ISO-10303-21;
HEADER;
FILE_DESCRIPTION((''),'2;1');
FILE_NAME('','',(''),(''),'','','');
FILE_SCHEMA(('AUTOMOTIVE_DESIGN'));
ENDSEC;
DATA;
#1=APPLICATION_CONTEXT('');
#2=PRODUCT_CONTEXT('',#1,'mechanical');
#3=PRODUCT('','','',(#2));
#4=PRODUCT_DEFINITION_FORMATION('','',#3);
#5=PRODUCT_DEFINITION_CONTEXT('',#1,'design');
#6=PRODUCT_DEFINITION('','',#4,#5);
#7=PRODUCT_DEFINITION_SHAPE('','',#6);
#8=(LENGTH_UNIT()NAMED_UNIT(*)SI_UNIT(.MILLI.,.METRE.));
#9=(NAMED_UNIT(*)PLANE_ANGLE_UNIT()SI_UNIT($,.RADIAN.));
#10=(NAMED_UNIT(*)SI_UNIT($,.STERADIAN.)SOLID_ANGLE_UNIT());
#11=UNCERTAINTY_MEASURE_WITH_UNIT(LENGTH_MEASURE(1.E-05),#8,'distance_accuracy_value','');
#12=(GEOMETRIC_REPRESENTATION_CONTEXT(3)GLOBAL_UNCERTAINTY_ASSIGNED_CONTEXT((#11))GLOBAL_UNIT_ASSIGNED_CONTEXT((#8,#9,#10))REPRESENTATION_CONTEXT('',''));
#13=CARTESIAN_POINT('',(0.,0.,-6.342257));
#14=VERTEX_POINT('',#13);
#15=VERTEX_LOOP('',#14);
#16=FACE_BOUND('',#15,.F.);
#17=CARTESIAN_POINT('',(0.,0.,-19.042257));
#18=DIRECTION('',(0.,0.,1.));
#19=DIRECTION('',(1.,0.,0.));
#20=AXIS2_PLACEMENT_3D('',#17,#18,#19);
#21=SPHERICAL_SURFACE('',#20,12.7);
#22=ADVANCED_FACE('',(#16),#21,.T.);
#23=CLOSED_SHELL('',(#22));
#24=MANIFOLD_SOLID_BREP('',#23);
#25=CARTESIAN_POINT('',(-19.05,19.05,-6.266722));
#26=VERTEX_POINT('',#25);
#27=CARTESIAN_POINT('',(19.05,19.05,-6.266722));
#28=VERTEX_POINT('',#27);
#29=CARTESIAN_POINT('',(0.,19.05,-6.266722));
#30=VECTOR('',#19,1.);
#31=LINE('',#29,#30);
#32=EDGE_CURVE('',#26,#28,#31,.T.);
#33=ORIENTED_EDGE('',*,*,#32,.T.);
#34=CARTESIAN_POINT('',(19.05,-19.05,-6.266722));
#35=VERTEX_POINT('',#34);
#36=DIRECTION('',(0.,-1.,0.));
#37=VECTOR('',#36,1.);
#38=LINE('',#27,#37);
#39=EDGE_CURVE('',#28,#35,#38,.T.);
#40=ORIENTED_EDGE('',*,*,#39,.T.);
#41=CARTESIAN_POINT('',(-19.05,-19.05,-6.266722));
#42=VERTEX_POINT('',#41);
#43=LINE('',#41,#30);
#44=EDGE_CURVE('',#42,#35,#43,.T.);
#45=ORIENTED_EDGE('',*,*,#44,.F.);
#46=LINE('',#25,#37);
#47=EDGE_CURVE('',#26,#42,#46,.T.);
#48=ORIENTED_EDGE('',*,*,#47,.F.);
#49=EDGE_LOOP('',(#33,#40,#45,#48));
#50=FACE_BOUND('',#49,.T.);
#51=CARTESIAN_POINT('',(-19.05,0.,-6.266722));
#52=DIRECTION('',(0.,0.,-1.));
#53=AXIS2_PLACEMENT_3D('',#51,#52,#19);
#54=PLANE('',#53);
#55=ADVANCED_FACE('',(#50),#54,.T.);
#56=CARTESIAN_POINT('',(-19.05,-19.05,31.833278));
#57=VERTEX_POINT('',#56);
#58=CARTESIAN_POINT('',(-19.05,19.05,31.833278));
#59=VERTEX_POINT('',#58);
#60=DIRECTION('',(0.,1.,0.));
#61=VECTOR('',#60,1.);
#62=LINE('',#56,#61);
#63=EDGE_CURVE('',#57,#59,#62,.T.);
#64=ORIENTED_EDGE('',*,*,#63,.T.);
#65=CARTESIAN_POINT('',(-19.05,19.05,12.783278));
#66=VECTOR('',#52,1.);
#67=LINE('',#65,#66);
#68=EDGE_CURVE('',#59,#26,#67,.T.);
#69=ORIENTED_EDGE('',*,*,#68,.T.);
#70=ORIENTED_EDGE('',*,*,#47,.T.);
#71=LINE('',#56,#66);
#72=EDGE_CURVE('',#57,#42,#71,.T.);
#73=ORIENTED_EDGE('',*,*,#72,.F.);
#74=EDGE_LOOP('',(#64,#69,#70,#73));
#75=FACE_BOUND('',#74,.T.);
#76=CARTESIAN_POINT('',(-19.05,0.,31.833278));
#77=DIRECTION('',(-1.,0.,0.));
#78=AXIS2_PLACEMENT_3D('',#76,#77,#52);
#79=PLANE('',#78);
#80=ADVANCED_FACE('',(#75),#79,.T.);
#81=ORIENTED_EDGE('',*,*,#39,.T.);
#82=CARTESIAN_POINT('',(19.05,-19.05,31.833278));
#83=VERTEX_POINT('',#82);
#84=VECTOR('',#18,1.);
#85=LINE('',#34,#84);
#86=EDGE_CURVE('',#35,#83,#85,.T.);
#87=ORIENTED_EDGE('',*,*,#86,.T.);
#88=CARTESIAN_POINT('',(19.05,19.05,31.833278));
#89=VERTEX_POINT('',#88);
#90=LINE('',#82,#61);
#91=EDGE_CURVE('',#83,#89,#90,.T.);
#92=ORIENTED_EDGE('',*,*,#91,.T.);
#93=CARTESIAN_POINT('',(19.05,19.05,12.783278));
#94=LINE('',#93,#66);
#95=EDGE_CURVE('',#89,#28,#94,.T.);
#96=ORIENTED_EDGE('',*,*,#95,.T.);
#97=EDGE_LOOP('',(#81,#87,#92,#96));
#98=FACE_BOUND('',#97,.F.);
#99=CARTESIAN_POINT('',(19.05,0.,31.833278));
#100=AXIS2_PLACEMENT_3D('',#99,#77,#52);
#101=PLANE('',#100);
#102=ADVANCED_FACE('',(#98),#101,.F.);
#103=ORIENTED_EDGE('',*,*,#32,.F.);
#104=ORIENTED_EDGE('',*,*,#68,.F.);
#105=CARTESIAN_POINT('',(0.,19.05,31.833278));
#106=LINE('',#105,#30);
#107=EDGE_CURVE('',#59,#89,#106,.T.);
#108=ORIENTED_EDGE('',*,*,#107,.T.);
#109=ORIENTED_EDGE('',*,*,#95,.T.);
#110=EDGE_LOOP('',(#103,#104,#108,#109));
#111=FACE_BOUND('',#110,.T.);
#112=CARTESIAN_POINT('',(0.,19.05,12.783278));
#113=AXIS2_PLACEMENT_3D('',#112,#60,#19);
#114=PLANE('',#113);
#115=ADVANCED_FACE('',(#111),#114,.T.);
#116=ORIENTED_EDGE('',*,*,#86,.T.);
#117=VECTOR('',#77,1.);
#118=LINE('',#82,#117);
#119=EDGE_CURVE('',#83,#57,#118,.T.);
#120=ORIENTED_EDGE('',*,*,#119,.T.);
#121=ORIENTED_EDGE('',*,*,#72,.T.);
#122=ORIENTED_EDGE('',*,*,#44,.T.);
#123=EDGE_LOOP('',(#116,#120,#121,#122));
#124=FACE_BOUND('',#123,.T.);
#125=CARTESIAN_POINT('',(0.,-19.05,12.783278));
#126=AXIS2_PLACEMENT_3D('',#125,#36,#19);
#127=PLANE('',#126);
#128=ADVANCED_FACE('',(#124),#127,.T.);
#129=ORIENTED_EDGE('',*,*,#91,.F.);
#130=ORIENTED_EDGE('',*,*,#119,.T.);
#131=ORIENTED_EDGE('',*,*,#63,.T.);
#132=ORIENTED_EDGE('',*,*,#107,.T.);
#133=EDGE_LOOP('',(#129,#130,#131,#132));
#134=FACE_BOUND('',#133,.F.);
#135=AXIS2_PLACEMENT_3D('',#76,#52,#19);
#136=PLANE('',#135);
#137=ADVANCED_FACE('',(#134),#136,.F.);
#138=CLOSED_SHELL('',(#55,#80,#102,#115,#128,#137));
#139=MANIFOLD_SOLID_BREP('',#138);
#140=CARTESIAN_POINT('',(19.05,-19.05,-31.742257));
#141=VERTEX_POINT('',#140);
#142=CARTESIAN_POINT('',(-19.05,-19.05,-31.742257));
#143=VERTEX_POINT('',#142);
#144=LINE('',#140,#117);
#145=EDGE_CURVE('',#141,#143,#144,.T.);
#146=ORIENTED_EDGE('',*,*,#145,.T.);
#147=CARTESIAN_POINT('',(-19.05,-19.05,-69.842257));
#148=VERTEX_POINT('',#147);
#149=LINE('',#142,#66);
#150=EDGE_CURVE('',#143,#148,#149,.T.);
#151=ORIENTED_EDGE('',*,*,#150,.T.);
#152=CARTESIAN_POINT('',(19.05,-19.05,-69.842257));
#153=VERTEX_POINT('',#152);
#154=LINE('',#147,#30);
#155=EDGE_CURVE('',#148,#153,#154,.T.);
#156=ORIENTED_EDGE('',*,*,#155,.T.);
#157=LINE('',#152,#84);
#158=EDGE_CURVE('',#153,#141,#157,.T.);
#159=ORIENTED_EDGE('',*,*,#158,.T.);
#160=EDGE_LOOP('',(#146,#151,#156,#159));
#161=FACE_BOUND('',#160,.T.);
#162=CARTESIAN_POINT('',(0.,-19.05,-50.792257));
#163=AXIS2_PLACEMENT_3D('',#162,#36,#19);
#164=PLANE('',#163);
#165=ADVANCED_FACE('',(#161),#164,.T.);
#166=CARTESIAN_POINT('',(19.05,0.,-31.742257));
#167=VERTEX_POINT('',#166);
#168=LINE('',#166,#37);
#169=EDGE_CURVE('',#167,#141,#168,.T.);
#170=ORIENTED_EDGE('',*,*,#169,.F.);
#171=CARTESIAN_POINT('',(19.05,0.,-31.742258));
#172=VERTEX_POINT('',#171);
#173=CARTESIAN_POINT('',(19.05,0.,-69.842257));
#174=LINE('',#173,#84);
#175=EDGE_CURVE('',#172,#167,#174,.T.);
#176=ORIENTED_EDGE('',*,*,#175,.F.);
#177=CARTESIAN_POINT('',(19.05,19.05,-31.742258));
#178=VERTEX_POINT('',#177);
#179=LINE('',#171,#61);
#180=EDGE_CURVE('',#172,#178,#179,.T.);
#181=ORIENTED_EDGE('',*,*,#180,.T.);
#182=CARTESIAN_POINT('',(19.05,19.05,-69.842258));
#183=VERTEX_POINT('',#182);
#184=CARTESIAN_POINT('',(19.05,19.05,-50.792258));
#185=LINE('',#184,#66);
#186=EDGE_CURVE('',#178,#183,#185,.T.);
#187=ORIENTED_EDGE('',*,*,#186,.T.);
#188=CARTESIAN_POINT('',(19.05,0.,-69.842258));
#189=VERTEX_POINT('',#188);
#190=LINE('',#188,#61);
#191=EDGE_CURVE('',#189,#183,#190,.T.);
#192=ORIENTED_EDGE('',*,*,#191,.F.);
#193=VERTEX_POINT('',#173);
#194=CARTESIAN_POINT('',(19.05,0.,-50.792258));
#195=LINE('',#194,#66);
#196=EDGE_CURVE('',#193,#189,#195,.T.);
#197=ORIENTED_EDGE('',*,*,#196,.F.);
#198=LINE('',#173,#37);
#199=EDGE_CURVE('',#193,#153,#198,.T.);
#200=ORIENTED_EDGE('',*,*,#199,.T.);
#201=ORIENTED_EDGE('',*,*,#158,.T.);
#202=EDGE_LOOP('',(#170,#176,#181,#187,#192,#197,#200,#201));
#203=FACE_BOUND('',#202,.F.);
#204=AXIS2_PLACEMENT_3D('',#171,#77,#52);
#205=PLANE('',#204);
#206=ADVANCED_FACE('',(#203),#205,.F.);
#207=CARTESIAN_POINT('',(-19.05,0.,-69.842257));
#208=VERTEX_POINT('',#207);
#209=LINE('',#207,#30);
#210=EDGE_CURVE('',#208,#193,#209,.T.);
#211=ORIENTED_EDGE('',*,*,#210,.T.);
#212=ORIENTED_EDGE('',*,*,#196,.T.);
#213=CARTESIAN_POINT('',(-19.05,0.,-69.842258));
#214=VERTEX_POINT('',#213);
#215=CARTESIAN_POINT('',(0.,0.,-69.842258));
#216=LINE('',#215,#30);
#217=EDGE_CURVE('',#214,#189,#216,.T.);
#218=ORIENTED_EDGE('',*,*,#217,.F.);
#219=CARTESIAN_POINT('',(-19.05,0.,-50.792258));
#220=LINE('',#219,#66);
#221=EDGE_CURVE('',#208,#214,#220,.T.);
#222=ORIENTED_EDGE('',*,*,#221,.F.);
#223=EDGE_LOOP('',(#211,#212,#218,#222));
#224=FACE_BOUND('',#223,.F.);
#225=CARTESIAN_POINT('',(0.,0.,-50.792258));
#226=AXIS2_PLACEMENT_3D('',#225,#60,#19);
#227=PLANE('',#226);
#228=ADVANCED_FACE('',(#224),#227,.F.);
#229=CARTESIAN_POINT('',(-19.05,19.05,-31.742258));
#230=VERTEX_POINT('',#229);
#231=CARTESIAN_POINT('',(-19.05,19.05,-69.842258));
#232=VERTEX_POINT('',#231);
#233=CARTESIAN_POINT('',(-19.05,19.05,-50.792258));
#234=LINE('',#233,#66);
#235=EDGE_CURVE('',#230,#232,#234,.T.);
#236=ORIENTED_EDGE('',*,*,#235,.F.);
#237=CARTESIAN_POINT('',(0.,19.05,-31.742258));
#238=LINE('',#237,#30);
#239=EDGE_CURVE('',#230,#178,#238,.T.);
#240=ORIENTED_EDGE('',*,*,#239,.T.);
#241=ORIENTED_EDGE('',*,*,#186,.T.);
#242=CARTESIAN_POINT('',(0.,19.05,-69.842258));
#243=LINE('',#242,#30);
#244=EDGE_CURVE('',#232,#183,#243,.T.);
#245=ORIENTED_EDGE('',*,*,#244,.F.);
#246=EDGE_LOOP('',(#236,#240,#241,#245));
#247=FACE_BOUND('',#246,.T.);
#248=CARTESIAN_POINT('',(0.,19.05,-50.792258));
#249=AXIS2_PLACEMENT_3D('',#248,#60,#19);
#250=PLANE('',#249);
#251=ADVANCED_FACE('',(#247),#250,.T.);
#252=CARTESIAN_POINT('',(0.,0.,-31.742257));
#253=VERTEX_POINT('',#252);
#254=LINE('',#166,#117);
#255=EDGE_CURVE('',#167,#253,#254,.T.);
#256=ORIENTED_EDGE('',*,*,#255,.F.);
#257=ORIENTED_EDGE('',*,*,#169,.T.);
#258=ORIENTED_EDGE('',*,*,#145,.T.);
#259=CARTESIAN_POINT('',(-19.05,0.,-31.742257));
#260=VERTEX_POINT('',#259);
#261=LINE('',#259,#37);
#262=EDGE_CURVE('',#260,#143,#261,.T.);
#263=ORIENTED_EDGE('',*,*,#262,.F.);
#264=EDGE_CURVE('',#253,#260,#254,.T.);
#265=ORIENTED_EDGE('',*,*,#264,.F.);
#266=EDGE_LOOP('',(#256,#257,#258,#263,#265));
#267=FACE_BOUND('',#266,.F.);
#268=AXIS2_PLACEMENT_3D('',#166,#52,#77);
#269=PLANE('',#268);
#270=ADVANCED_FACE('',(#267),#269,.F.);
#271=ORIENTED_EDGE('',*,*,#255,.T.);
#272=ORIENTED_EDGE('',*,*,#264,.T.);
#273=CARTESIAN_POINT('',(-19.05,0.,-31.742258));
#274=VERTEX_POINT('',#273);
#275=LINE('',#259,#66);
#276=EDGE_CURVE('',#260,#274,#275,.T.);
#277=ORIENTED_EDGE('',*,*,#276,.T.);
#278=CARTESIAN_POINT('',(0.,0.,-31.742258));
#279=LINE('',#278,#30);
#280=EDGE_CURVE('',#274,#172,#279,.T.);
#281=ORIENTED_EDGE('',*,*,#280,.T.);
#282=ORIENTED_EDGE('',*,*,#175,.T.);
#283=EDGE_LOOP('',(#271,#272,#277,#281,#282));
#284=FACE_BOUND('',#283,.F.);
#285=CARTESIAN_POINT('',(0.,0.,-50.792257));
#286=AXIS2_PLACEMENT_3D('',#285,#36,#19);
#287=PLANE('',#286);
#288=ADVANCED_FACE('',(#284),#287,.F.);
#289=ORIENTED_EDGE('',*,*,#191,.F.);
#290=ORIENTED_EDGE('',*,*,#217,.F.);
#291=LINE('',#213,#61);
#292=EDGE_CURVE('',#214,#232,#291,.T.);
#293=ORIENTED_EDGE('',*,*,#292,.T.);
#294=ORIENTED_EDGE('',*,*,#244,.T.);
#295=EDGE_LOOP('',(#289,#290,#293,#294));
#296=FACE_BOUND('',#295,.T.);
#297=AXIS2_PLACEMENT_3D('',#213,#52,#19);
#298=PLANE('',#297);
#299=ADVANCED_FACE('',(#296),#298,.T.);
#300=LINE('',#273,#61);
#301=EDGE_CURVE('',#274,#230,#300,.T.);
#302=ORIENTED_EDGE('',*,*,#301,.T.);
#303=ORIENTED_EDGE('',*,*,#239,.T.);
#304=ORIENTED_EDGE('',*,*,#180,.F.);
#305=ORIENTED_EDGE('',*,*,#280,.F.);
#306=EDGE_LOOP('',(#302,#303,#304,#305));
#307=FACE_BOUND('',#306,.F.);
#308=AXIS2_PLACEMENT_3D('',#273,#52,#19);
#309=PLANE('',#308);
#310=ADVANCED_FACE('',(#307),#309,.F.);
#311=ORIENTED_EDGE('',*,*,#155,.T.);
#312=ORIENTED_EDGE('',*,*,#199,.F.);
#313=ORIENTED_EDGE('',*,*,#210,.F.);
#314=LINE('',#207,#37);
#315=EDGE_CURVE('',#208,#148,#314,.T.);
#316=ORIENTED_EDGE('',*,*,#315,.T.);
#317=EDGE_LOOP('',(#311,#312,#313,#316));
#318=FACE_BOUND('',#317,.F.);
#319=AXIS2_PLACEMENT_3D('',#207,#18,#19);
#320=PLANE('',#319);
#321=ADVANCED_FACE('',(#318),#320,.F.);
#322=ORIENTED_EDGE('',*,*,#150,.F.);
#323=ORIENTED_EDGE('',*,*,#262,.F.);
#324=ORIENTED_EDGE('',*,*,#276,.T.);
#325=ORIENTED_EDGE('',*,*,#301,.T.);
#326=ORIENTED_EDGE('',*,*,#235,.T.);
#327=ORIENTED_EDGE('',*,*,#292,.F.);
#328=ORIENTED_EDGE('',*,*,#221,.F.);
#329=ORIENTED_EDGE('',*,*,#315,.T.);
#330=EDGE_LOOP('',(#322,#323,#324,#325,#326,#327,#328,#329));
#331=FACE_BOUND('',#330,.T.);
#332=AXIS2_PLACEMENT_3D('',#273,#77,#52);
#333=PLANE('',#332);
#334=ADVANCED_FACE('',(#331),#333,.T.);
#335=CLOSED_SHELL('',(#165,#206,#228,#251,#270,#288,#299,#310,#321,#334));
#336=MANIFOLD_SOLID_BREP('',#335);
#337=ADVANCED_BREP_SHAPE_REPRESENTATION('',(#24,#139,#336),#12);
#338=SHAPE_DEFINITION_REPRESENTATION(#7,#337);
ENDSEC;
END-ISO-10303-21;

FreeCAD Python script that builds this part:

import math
import FreeCAD as App
import Part
import Sketcher
Q = App.Units.Quantity

doc = App.newDocument("Part")
params = doc.addObject("Spreadsheet::Sheet", "Params")
for row, (alias, value) in enumerate([
    ("sketch1_radius", "0.5 in"),
    ("revolution_angle", "360 deg"),
    ("sketch2_width", "1.5 in"),
    ("pad1_length", "0.75 in"),
    ("sketch3_width", "1.5 in"),
    ("pad2_length", "0.75 in"),
], start=1):
    params.set(f"A{row}", alias)
    params.set(f"B{row}", "=" + value)
    params.setAlias(f"B{row}", alias)

body = doc.addObject("PartDesign::Body", "Body")

sketch1 = doc.addObject("Sketcher::SketchObject", "Sketch")
body.addObject(sketch1)
sketch1.AttachmentSupport = (doc.XZ_Plane, [""])
sketch1.MapMode = "FlatFace"
sketch1.addGeometry([
    Part.LineSegment(App.Vector(0, -6, 0), App.Vector(0, -32, 0)),
    Part.ArcOfCircle(Part.Circle(App.Vector(0, -19, 0), App.Vector(0, 0, 1), 13), math.radians(-90), math.radians(90)),
], False)
sketch1.addConstraint([
    Sketcher.Constraint("Coincident", 0, 1, 1, 2),
    Sketcher.Constraint("Coincident", 1, 1, 0, 2),
    Sketcher.Constraint("Vertical", 0),
    Sketcher.Constraint("PointOnObject", 1, 3, -2),
    Sketcher.Constraint("PointOnObject", 0, 1, -2),
    Sketcher.Constraint("Radius", 1, Q("0.5 in")),
    Sketcher.Constraint("DistanceY", 1, 3, -1, 1, Q("19.042257 mm")),
])
sketch1.setExpression("Constraints[5]", "Params.sketch1_radius")
revolution = doc.addObject("PartDesign::Revolution", "Revolution")
body.addObject(revolution)
revolution.Profile = sketch1
revolution.ReferenceAxis = (sketch1, ["V_Axis"])
revolution.setExpression("Angle", "Params.revolution_angle")
body2 = doc.addObject("PartDesign::Body", "Body001")
body2.AllowCompound = True

sketch2 = doc.addObject("Sketcher::SketchObject", "Sketch001")
body2.addObject(sketch2)
sketch2.AttachmentSupport = (doc.getObject("XZ_Plane001"), [""])
sketch2.MapMode = "FlatFace"
sketch2.addGeometry([
    Part.LineSegment(App.Vector(19, 32, 0), App.Vector(-19, 32, 0)),
    Part.LineSegment(App.Vector(-19, 32, 0), App.Vector(-19, -6, 0)),
    Part.LineSegment(App.Vector(-19, -6, 0), App.Vector(19, -6, 0)),
    Part.LineSegment(App.Vector(19, -6, 0), App.Vector(19, 32, 0)),
    Part.LineSegment(App.Vector(-19, -32, 0), App.Vector(-19, -70, 0)),
    Part.LineSegment(App.Vector(-19, -70, 0), App.Vector(19, -70, 0)),
    Part.LineSegment(App.Vector(19, -70, 0), App.Vector(19, -32, 0)),
    Part.LineSegment(App.Vector(19, -32, 0), App.Vector(-19, -32, 0)),
], False)
sketch2.addConstraint([
    Sketcher.Constraint("Coincident", 0, 2, 1, 1),
    Sketcher.Constraint("Coincident", 1, 2, 2, 1),
    Sketcher.Constraint("Coincident", 2, 2, 3, 1),
    Sketcher.Constraint("Coincident", 3, 2, 0, 1),
    Sketcher.Constraint("Coincident", 4, 2, 5, 1),
    Sketcher.Constraint("Coincident", 5, 2, 6, 1),
    Sketcher.Constraint("Coincident", 6, 2, 7, 1),
    Sketcher.Constraint("Coincident", 7, 2, 4, 1),
    Sketcher.Constraint("Horizontal", 0),
    Sketcher.Constraint("Vertical", 1),
    Sketcher.Constraint("Horizontal", 2),
    Sketcher.Constraint("Vertical", 3),
    Sketcher.Constraint("Vertical", 4),
    Sketcher.Constraint("Horizontal", 5),
    Sketcher.Constraint("Vertical", 6),
    Sketcher.Constraint("Horizontal", 7),
    Sketcher.Constraint("Vertical", 1, 2, 4, 2),
    Sketcher.Constraint("Vertical", 3, 2, 5, 2),
    Sketcher.Constraint("Equal", 7, 1),
    Sketcher.Constraint("Equal", 3, 4),
    Sketcher.Constraint("DistanceX", 0, 2, 0, 1, Q("1.5 in")),
    Sketcher.Constraint("DistanceX", 0, 2, -1, 1, Q("0.75 in")),
    Sketcher.Constraint("DistanceY", -1, 1, 0, 2, Q("31.833278 mm")),
    Sketcher.Constraint("DistanceY", 4, 2, -1, 1, Q("69.842257 mm")),
])
sketch2.setExpression("Constraints[20]", "Params.sketch2_width")
pad1 = doc.addObject("PartDesign::Pad", "Pad")
body2.addObject(pad1)
pad1.Profile = sketch2
pad1.setExpression("Length", "Params.pad1_length")
body.AllowCompound = True
doc.recompute()

boolean = doc.addObject("PartDesign::Boolean", "Boolean")
body.addObject(boolean)
boolean.Type = "Fuse"
boolean.addObjects([body2])

sketch3 = doc.addObject("Sketcher::SketchObject", "Sketch002")
body.addObject(sketch3)
sketch3.AttachmentSupport = (doc.XZ_Plane, [""])
sketch3.MapMode = "FlatFace"
sketch3.addGeometry([
    Part.LineSegment(App.Vector(-19, -6, 0), App.Vector(-19, 32, 0)),
    Part.LineSegment(App.Vector(-19, 32, 0), App.Vector(19, 32, 0)),
    Part.LineSegment(App.Vector(19, 32, 0), App.Vector(19, -6, 0)),
    Part.LineSegment(App.Vector(19, -6, 0), App.Vector(-19, -6, 0)),
    Part.LineSegment(App.Vector(-19, -70, 0), App.Vector(-19, -32, 0)),
    Part.LineSegment(App.Vector(-19, -32, 0), App.Vector(19, -32, 0)),
    Part.LineSegment(App.Vector(19, -32, 0), App.Vector(19, -70, 0)),
    Part.LineSegment(App.Vector(19, -70, 0), App.Vector(-19, -70, 0)),
], False)
sketch3.addConstraint([
    Sketcher.Constraint("Coincident", 0, 2, 1, 1),
    Sketcher.Constraint("Coincident", 1, 2, 2, 1),
    Sketcher.Constraint("Coincident", 2, 2, 3, 1),
    Sketcher.Constraint("Coincident", 3, 2, 0, 1),
    Sketcher.Constraint("Coincident", 4, 2, 5, 1),
    Sketcher.Constraint("Coincident", 5, 2, 6, 1),
    Sketcher.Constraint("Coincident", 6, 2, 7, 1),
    Sketcher.Constraint("Coincident", 7, 2, 4, 1),
    Sketcher.Constraint("Vertical", 0),
    Sketcher.Constraint("Horizontal", 1),
    Sketcher.Constraint("Vertical", 2),
    Sketcher.Constraint("Horizontal", 3),
    Sketcher.Constraint("Vertical", 4),
    Sketcher.Constraint("Horizontal", 5),
    Sketcher.Constraint("Vertical", 6),
    Sketcher.Constraint("Horizontal", 7),
    Sketcher.Constraint("Vertical", 3, 2, 4, 2),
    Sketcher.Constraint("Vertical", 2, 2, 5, 2),
    Sketcher.Constraint("Equal", 7, 0),
    Sketcher.Constraint("Equal", 2, 4),
    Sketcher.Constraint("DistanceX", 1, 1, 1, 2, Q("1.5 in")),
    Sketcher.Constraint("DistanceX", 0, 2, -1, 1, Q("0.75 in")),
    Sketcher.Constraint("DistanceY", -1, 1, 0, 2, Q("31.833278 mm")),
    Sketcher.Constraint("DistanceY", 6, 2, -1, 1, Q("69.842258 mm")),
])
sketch3.setExpression("Constraints[20]", "Params.sketch3_width")
pad2 = doc.addObject("PartDesign::Pad", "Pad001")
body.addObject(pad2)
pad2.Profile = sketch3
pad2.setExpression("Length", "Params.pad2_length")
pad2.Reversed = True

doc.recompute()
